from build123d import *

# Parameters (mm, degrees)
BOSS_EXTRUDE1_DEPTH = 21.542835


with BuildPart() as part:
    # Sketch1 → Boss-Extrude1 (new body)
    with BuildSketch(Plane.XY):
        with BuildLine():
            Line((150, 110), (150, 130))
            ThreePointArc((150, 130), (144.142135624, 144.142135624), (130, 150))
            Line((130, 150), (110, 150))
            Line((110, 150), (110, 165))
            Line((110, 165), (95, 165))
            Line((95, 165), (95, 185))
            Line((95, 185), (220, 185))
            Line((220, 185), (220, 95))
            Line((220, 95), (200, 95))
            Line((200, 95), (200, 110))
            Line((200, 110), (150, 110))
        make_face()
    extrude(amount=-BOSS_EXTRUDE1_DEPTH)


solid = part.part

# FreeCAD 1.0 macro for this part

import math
import FreeCAD as App
import Part
import Sketcher
from FreeCAD import Vector

doc = App.newDocument("Part")
params = doc.addObject("Spreadsheet::Sheet", "Params")
for row, (alias, value) in enumerate([
    ("sketch1_radius", "20 mm"),
    ("sketch1_width", "50 mm"),
    ("sketch1_width2", "20 mm"),
    ("sketch1_width3", "125 mm"),
    ("pad1_length", "21.542835 mm"),
], start=1):
    params.set(f"A{row}", alias)
    params.set(f"B{row}", "=" + value)
    params.setAlias(f"B{row}", alias)

body = doc.addObject("PartDesign::Body", "Body")

# Sketch on XY plane
sketch1 = doc.addObject("Sketcher::SketchObject", "Sketch")
body.addObject(sketch1)
sketch1.AttachmentSupport = (doc.XY_Plane, [""])
sketch1.MapMode = "FlatFace"
sketch1.addGeometry([
    Part.LineSegment(Vector(150, 130, 0), Vector(150, 110, 0)),  # 0
    Part.LineSegment(Vector(150, 110, 0), Vector(200, 110, 0)),  # 1
    Part.LineSegment(Vector(200, 110, 0), Vector(200, 95, 0)),  # 2
    Part.LineSegment(Vector(200, 95, 0), Vector(220, 95, 0)),  # 3
    Part.LineSegment(Vector(220, 95, 0), Vector(220, 185, 0)),  # 4
    Part.LineSegment(Vector(220, 185, 0), Vector(95, 185, 0)),  # 5
    Part.LineSegment(Vector(95, 185, 0), Vector(95, 165, 0)),  # 6
    Part.LineSegment(Vector(95, 165, 0), Vector(110, 165, 0)),  # 7
    Part.LineSegment(Vector(110, 165, 0), Vector(110, 150, 0)),  # 8
    Part.LineSegment(Vector(110, 150, 0), Vector(130, 150, 0)),  # 9
    Part.ArcOfCircle(Part.Circle(Vector(130, 130, 0), Vector(0, 0, 1), 20), math.radians(0), math.radians(90)),  # 10
], False)
sketch1.addConstraint([
    Sketcher.Constraint("Coincident", 0, 2, 1, 1),
    Sketcher.Constraint("Coincident", 1, 2, 2, 1),
    Sketcher.Constraint("Coincident", 2, 2, 3, 1),
    Sketcher.Constraint("Coincident", 3, 2, 4, 1),
    Sketcher.Constraint("Coincident", 4, 2, 5, 1),
    Sketcher.Constraint("Coincident", 5, 2, 6, 1),
    Sketcher.Constraint("Coincident", 6, 2, 7, 1),
    Sketcher.Constraint("Coincident", 7, 2, 8, 1),
    Sketcher.Constraint("Coincident", 8, 2, 9, 1),
    Sketcher.Constraint("Tangent", 9, 2, 10, 2),
    Sketcher.Constraint("Tangent", 10, 1, 0, 1),
    Sketcher.Constraint("Vertical", 0),
    Sketcher.Constraint("Horizontal", 1),
    Sketcher.Constraint("Vertical", 2),
    Sketcher.Constraint("Horizontal", 3),
    Sketcher.Constraint("Vertical", 4),
    Sketcher.Constraint("Horizontal", 5),
    Sketcher.Constraint("Vertical", 6),
    Sketcher.Constraint("Horizontal", 7),
    Sketcher.Constraint("Vertical", 8),
    Sketcher.Constraint("Horizontal", 9),
    Sketcher.Constraint("Equal", 3, 9),
    Sketcher.Constraint("Equal", 9, 0),
    Sketcher.Constraint("Equal", 7, 2),
    Sketcher.Constraint("Equal", 0, 6),
    Sketcher.Constraint("Equal", 2, 8),
    Sketcher.Constraint("Radius", 10, 20.0),
    Sketcher.Constraint("DistanceX", 1, 1, 1, 2, 50.0),
    Sketcher.Constraint("DistanceX", 3, 1, 3, 2, 20.0),
    Sketcher.Constraint("DistanceX", 5, 2, 5, 1, 125.0),
    Sketcher.Constraint("DistanceX", -1, 1, 10, 3, 130.0),
    Sketcher.Constraint("DistanceY", -1, 1, 10, 3, 130.0),
])
sketch1.setExpression("Constraints[26]", "Params.sketch1_radius")
sketch1.setExpression("Constraints[27]", "Params.sketch1_width")
sketch1.setExpression("Constraints[28]", "Params.sketch1_width2")
sketch1.setExpression("Constraints[29]", "Params.sketch1_width3")
pad1 = doc.addObject("PartDesign::Pad", "Pad")
body.addObject(pad1)
pad1.Profile = sketch1
pad1.setExpression("Length", "Params.pad1_length")
pad1.Reversed = True

doc.recompute()
